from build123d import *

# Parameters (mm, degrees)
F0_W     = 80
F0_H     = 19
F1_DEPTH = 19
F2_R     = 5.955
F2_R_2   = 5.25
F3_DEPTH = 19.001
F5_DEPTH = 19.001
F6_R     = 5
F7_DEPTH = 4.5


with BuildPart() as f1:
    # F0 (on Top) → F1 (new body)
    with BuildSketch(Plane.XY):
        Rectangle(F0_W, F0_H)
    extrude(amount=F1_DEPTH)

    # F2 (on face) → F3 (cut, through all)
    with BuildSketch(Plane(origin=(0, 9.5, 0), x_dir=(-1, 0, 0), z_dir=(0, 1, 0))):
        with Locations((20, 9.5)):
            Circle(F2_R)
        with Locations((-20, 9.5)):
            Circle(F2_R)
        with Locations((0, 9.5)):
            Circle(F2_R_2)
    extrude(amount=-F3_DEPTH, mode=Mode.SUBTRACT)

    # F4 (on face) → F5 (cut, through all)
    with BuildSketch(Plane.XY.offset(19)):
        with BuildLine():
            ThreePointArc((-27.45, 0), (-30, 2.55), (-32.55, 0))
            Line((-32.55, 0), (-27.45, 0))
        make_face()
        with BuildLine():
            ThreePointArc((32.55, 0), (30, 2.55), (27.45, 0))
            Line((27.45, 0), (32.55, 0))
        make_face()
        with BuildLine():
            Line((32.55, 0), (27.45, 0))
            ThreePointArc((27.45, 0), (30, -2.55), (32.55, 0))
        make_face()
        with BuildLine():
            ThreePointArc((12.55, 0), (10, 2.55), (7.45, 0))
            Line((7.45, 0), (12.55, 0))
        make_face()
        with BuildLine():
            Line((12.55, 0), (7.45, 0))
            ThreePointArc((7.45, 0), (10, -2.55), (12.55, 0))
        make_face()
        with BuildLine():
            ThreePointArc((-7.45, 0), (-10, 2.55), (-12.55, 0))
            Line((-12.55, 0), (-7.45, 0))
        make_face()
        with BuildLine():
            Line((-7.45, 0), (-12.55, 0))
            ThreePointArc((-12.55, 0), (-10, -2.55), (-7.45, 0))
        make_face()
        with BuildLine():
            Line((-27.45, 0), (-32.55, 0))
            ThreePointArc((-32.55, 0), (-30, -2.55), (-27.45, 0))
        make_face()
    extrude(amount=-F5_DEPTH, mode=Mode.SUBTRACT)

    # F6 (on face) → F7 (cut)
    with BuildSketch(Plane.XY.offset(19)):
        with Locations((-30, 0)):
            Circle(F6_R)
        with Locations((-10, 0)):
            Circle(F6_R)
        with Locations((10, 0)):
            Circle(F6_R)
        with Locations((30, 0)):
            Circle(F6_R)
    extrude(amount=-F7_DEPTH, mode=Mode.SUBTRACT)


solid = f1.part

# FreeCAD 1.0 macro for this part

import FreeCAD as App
import Part
import Sketcher

V = App.Vector

doc = App.newDocument("Part")
body = doc.addObject("PartDesign::Body", "Body")

# Sketch on XY plane
sketch1 = body.newObject("Sketcher::SketchObject", "Sketch")
sketch1.AttachmentSupport = (doc.getObject("XY_Plane"), [""])
sketch1.MapMode = "FlatFace"
sketch1.addGeometry([
    Part.LineSegment(V(-40, 9.5, 0), V(-40, -9.5, 0)),
    Part.LineSegment(V(-40, -9.5, 0), V(40, -9.5, 0)),
    Part.LineSegment(V(40, -9.5, 0), V(40, 9.5, 0)),
    Part.LineSegment(V(40, 9.5, 0), V(-40, 9.5, 0)),
], False)
sketch1.addConstraint([
    Sketcher.Constraint("Coincident", 0, 2, 1, 1),
    Sketcher.Constraint("Coincident", 1, 2, 2, 1),
    Sketcher.Constraint("Coincident", 2, 2, 3, 1),
    Sketcher.Constraint("Coincident", 3, 2, 0, 1),
    Sketcher.Constraint("Vertical", 0),
    Sketcher.Constraint("Horizontal", 1),
    Sketcher.Constraint("Vertical", 2),
    Sketcher.Constraint("Horizontal", 3),
    Sketcher.Constraint("Symmetric", 0, 2, 2, 2, -1, 1),
    Sketcher.Constraint("DistanceX", 1, 1, 1, 2, 80.0),
    Sketcher.Constraint("DistanceY", 0, 2, 0, 1, 19.0),
])
pad1 = body.newObject("PartDesign::Pad", "Pad")
pad1.Profile = sketch1
pad1.Length = 19

# Sketch on XZ plane
sketch2 = body.newObject("Sketcher::SketchObject", "Sketch001")
sketch2.AttachmentSupport = (doc.getObject("XZ_Plane"), [""])
sketch2.MapMode = "FlatFace"
sketch2.AttachmentOffset = App.Placement(V(0, 0, -9.5), App.Rotation())
sketch2.addGeometry([
    Part.Circle(V(-20, 9.5, 0), V(0, 0, 1), 5.955),
    Part.Circle(V(20, 9.5, 0), V(0, 0, 1), 5.955),
    Part.Circle(V(0, 9.5, 0), V(0, 0, 1), 5.25),
], False)
sketch2.addConstraint([
    Sketcher.Constraint("Equal", 0, 1),
    Sketcher.Constraint("Symmetric", 0, 3, 1, 3, -2),
    Sketcher.Constraint("PointOnObject", 2, 3, -2),
    Sketcher.Constraint("Horizontal", 1, 3, 2, 3),
    Sketcher.Constraint("Diameter", 2, 10.5),
    Sketcher.Constraint("Diameter", 0, 11.91),
    Sketcher.Constraint("DistanceX", 0, 3, -1, 1, 20.0),
    Sketcher.Constraint("DistanceY", -1, 1, 0, 3, 9.5),
])
pocket1 = body.newObject("PartDesign::Pocket", "Pocket")
pocket1.Profile = sketch2
pocket1.Type = "ThroughAll"
pocket1.Reversed = True

# Sketch on XY plane
sketch3 = body.newObject("Sketcher::SketchObject", "Sketch002")
sketch3.AttachmentSupport = (doc.getObject("XY_Plane"), [""])
sketch3.MapMode = "FlatFace"
sketch3.AttachmentOffset = App.Placement(V(0, 0, 19), App.Rotation())
sketch3.addGeometry([
    Part.Circle(V(-30, 0, 0), V(0, 0, 1), 2.55),
    Part.Circle(V(30, 0, 0), V(0, 0, 1), 2.55),
    Part.Circle(V(10, 0, 0), V(0, 0, 1), 2.55),
    Part.Circle(V(-10, 0, 0), V(0, 0, 1), 2.55),
], False)
sketch3.addConstraint([
    Sketcher.Constraint("Equal", 0, 1),
    Sketcher.Constraint("Equal", 1, 2),
    Sketcher.Constraint("Equal", 2, 3),
    Sketcher.Constraint("Symmetric", 0, 3, 1, 3, -1, 1),
    Sketcher.Constraint("Symmetric", 2, 3, 3, 3, -1, 1),
    Sketcher.Constraint("PointOnObject", 0, 3, -1),
    Sketcher.Constraint("PointOnObject", 2, 3, -1),
    Sketcher.Constraint("Diameter", 0, 5.1),
    Sketcher.Constraint("DistanceX", 0, 3, -1, 1, 30.0),
    Sketcher.Constraint("DistanceX", -1, 1, 2, 3, 10.0),
])
pocket2 = body.newObject("PartDesign::Pocket", "Pocket001")
pocket2.Profile = sketch3
pocket2.Type = "ThroughAll"

# Sketch on XY plane
sketch4 = body.newObject("Sketcher::SketchObject", "Sketch003")
sketch4.AttachmentSupport = (doc.getObject("XY_Plane"), [""])
sketch4.MapMode = "FlatFace"
sketch4.AttachmentOffset = App.Placement(V(0, 0, 19), App.Rotation())
sketch4.addGeometry([
    Part.Circle(V(-30, 0, 0), V(0, 0, 1), 5),
    Part.Circle(V(-10, 0, 0), V(0, 0, 1), 5),
    Part.Circle(V(10, 0, 0), V(0, 0, 1), 5),
    Part.Circle(V(30, 0, 0), V(0, 0, 1), 5),
], False)
sketch4.addConstraint([
    Sketcher.Constraint("Equal", 0, 1),
    Sketcher.Constraint("Equal", 1, 2),
    Sketcher.Constraint("Equal", 2, 3),
    Sketcher.Constraint("Symmetric", 1, 3, 2, 3, -1, 1),
    Sketcher.Constraint("Symmetric", 0, 3, 3, 3, -1, 1),
    Sketcher.Constraint("PointOnObject", 0, 3, -1),
    Sketcher.Constraint("PointOnObject", 1, 3, -1),
    Sketcher.Constraint("Diameter", 0, 10.0),
    Sketcher.Constraint("DistanceX", 0, 3, -1, 1, 30.0),
    Sketcher.Constraint("DistanceX", 1, 3, -1, 1, 10.0),
])
pocket3 = body.newObject("PartDesign::Pocket", "Pocket002")
pocket3.Profile = sketch4
pocket3.Length = 4.5

doc.recompute()
